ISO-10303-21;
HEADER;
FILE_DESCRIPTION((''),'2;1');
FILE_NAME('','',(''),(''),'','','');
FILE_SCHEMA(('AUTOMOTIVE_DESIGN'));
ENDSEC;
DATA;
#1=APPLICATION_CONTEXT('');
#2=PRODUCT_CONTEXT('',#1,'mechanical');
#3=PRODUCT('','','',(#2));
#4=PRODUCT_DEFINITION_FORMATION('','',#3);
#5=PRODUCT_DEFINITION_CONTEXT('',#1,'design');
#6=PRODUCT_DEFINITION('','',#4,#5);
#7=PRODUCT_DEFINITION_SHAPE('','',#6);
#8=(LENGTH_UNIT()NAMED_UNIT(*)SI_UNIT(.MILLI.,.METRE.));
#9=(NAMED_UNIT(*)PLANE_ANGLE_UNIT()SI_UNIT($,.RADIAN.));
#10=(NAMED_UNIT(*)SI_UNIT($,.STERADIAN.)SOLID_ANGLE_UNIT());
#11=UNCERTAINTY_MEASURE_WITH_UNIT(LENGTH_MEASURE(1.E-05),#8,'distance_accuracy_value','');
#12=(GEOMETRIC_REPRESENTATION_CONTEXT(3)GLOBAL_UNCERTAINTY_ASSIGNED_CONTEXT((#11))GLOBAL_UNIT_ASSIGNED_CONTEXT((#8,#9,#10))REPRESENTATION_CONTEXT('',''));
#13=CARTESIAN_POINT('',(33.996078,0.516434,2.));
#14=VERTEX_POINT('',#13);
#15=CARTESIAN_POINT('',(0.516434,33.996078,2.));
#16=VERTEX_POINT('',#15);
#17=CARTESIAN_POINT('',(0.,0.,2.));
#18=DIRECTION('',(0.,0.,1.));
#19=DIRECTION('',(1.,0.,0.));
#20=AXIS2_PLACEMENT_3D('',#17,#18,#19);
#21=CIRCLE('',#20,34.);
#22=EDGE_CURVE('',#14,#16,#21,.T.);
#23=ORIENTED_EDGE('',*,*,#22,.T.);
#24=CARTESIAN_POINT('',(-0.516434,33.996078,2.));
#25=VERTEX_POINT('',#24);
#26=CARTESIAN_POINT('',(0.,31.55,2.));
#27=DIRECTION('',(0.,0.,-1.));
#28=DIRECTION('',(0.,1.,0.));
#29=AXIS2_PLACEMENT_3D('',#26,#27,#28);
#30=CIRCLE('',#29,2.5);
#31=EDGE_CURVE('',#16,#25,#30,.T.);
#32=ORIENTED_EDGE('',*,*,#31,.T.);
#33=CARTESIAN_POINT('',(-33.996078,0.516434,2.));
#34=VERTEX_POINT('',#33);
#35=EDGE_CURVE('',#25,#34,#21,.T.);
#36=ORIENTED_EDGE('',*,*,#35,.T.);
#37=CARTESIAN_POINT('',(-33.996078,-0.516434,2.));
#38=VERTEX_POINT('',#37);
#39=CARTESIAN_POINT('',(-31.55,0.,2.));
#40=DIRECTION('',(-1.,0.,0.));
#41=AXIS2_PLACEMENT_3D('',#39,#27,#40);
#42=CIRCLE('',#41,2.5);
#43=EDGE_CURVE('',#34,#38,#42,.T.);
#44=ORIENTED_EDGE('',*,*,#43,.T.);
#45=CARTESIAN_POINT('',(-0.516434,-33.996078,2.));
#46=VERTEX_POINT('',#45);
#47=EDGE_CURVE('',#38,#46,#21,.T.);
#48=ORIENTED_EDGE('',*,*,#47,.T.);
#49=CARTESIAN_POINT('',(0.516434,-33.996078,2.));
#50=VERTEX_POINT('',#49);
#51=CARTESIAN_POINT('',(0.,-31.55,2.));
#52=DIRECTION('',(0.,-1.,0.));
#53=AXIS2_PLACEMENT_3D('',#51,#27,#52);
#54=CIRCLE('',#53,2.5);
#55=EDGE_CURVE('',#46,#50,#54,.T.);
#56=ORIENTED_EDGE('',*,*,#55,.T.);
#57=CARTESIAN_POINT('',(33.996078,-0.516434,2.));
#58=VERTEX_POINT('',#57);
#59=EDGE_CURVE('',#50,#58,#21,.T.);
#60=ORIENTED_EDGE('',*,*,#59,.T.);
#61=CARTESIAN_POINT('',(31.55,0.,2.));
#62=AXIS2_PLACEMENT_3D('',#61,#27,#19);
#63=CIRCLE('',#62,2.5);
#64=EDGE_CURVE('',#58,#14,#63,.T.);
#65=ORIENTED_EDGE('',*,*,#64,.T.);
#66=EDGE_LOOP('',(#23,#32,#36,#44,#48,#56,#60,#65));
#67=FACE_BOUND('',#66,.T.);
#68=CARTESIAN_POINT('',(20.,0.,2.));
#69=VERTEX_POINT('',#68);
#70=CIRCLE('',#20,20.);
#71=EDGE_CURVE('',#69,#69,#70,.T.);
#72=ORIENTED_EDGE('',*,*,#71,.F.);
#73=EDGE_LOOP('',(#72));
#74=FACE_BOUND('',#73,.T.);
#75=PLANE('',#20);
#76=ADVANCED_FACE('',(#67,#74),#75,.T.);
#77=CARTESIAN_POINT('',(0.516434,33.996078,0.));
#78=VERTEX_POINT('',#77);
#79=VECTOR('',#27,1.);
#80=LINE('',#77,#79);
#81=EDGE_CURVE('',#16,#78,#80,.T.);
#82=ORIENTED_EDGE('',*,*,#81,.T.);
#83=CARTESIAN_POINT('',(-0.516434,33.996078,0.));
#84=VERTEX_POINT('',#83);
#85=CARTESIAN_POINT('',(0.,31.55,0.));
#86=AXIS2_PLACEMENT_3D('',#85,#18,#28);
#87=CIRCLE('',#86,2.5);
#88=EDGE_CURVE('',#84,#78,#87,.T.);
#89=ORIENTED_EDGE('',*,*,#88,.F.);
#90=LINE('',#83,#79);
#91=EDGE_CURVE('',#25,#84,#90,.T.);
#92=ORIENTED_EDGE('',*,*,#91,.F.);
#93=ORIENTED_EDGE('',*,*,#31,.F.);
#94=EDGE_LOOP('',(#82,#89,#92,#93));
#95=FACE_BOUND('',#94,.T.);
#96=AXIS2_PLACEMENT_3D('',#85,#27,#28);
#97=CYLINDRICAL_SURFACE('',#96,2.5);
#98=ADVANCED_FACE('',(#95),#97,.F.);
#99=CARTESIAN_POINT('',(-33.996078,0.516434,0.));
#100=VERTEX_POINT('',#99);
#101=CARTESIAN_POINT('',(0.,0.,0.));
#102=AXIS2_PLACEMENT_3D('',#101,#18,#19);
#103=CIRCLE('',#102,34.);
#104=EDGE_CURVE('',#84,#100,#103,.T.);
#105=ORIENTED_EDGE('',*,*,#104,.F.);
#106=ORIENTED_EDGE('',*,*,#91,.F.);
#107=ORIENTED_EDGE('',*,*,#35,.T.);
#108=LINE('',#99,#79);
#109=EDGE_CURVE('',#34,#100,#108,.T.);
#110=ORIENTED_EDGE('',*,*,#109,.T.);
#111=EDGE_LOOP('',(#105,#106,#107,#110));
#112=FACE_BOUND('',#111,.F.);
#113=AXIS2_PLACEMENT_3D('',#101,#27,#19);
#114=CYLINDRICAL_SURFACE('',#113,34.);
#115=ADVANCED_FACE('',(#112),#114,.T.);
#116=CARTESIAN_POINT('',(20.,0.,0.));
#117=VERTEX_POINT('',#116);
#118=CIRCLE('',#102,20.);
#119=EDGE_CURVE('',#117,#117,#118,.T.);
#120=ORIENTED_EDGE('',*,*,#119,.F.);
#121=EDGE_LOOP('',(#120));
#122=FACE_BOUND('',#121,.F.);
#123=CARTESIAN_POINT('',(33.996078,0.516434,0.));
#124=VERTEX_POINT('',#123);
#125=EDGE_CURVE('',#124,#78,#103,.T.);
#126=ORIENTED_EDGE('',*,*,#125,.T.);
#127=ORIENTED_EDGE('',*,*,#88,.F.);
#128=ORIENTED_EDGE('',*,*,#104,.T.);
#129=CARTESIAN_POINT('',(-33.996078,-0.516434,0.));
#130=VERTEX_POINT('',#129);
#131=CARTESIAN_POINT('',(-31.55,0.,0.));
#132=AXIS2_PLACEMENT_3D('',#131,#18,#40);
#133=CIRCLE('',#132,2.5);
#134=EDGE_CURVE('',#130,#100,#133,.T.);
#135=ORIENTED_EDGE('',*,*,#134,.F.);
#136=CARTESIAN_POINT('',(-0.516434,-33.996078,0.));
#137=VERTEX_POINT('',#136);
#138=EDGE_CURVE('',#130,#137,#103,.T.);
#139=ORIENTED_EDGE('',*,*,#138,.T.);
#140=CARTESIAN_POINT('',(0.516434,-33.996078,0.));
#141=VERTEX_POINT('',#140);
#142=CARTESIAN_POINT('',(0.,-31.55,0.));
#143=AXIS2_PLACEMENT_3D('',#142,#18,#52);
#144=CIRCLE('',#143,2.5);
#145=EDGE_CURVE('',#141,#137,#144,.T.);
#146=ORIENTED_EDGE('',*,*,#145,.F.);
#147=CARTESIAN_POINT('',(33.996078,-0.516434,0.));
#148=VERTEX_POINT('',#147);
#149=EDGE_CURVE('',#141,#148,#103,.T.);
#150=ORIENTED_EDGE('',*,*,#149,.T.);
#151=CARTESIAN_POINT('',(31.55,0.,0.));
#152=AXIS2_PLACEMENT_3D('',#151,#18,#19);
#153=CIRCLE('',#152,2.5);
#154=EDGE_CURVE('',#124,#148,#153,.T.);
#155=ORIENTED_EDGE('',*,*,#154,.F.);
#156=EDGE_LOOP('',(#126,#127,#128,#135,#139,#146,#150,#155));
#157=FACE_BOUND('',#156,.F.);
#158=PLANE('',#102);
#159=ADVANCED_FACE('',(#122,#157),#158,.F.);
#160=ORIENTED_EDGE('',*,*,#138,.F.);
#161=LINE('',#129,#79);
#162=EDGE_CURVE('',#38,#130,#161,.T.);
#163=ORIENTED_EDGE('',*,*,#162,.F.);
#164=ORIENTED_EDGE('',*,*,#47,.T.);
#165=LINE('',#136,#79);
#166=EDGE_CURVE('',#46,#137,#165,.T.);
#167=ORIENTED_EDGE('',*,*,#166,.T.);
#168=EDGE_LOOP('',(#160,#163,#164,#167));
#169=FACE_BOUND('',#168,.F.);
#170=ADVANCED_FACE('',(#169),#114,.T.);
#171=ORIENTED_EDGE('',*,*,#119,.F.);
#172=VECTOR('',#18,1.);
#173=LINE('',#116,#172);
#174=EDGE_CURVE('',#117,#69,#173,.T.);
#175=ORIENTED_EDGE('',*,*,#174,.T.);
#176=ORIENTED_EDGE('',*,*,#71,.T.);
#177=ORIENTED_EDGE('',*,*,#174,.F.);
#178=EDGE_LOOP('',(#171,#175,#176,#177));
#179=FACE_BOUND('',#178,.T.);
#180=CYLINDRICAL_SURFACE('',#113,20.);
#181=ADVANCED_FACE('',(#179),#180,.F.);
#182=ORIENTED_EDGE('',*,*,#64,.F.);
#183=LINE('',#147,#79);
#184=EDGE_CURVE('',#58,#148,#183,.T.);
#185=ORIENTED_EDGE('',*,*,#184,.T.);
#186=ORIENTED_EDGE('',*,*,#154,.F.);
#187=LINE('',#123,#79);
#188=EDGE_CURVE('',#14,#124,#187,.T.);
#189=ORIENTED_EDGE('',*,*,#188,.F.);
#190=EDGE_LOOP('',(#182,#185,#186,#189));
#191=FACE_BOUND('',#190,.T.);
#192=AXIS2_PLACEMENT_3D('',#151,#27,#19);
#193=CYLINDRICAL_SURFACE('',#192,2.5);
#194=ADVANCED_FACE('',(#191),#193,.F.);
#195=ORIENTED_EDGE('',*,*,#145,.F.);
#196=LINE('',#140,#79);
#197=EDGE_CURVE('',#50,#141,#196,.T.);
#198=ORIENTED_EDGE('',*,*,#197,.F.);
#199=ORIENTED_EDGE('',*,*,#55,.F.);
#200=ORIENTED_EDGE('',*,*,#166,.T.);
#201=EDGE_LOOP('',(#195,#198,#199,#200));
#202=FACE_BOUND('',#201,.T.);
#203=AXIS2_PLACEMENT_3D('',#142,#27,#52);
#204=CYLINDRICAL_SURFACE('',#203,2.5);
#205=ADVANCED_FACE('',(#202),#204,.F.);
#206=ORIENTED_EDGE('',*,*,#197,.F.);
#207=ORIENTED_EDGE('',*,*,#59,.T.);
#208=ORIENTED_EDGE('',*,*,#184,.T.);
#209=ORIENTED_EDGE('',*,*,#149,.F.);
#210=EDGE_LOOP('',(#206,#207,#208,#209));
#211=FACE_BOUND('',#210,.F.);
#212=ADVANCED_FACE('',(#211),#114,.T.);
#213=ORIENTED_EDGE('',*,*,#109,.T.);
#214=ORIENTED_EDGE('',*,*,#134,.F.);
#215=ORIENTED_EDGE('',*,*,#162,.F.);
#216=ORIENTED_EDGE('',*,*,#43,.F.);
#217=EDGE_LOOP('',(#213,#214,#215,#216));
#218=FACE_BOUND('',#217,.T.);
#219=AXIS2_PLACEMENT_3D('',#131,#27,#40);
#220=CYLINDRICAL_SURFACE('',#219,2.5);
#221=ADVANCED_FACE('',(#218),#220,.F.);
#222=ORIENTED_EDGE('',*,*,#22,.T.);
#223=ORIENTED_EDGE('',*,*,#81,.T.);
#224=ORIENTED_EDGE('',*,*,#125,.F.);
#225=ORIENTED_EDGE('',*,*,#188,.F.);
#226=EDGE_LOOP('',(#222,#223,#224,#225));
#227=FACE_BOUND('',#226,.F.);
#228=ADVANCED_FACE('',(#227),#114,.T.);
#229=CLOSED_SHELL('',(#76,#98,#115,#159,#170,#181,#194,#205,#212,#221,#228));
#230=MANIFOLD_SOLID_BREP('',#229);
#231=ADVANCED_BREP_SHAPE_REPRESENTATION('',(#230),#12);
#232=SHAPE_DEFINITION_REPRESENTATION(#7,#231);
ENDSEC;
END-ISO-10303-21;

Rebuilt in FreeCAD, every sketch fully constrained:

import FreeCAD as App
import Part
import Sketcher
from FreeCAD import Vector

doc = App.newDocument("Part")
body = doc.addObject("PartDesign::Body", "Body")

# Sketch on XY plane
sketch1 = body.newObject("Sketcher::SketchObject", "Sketch")
sketch1.AttachmentSupport = (doc.getObject("XY_Plane"), [""])
sketch1.MapMode = "FlatFace"
sketch1.addGeometry(Part.Circle(Vector(31.6, 0, 0), Vector(0, 0, 1), 2.5), False)
sketch1.addConstraint(Sketcher.Constraint("PointOnObject", 0, 3, -1))
sketch1.addConstraint(Sketcher.Constraint("Diameter", 0, 5.0))
sketch1.addConstraint(Sketcher.Constraint("DistanceX", -1, 1, 0, 3, 31.55))
pad1 = body.newObject("PartDesign::Pad", "Pad")
pad1.Profile = sketch1
pad1.Length = 10
body2 = doc.addObject("PartDesign::Body", "Body001")
body2.AllowCompound = True
doc.recompute()

body2.BaseFeature = body
doc.recompute()

body3 = doc.addObject("PartDesign::Body", "Body002")
body3.BaseFeature = body
body3.Placement = App.Placement(Vector(0, 0, 0), App.Rotation(Vector(0, 0, 1), 90))
boolean = body2.newObject("PartDesign::Boolean", "Boolean")
boolean.Type = "Fuse"
boolean.addObjects([body3])
doc.recompute()

body4 = doc.addObject("PartDesign::Body", "Body003")
body4.BaseFeature = body
body4.Placement = App.Placement(Vector(0, 0, 0), App.Rotation(Vector(0, 0, 1), 180))
boolean2 = body2.newObject("PartDesign::Boolean", "Boolean001")
boolean2.Type = "Fuse"
boolean2.addObjects([body4])
doc.recompute()

body.Placement = App.Placement(Vector(0, 0, 0), App.Rotation(Vector(0, 0, 1), 270))
boolean3 = body2.newObject("PartDesign::Boolean", "Boolean002")
boolean3.Type = "Fuse"
boolean3.addObjects([body])
body5 = doc.addObject("PartDesign::Body", "Body004")

# Sketch on XY plane
sketch2 = body5.newObject("Sketcher::SketchObject", "Sketch001")
sketch2.AttachmentSupport = (doc.getObject("XY_Plane004"), [""])
sketch2.MapMode = "FlatFace"
sketch2.addGeometry(Part.Circle(Vector(0, 0, 0), Vector(0, 0, 1), 34), False)
sketch2.addGeometry(Part.Circle(Vector(0, 0, 0), Vector(0, 0, 1), 20), False)
sketch2.addConstraint(Sketcher.Constraint("Coincident", 0, 3, -1, 1))
sketch2.addConstraint(Sketcher.Constraint("Coincident", 1, 3, -1, 1))
sketch2.addConstraint(Sketcher.Constraint("Diameter", 0, 68.0))
sketch2.addConstraint(Sketcher.Constraint("Diameter", 1, 40.0))
pad2 = body5.newObject("PartDesign::Pad", "Pad001")
pad2.Profile = sketch2
pad2.Length = 2
doc.recompute()

boolean4 = body5.newObject("PartDesign::Boolean", "Boolean003")
boolean4.Type = "Cut"
boolean4.addObjects([body2])

doc.recompute()
